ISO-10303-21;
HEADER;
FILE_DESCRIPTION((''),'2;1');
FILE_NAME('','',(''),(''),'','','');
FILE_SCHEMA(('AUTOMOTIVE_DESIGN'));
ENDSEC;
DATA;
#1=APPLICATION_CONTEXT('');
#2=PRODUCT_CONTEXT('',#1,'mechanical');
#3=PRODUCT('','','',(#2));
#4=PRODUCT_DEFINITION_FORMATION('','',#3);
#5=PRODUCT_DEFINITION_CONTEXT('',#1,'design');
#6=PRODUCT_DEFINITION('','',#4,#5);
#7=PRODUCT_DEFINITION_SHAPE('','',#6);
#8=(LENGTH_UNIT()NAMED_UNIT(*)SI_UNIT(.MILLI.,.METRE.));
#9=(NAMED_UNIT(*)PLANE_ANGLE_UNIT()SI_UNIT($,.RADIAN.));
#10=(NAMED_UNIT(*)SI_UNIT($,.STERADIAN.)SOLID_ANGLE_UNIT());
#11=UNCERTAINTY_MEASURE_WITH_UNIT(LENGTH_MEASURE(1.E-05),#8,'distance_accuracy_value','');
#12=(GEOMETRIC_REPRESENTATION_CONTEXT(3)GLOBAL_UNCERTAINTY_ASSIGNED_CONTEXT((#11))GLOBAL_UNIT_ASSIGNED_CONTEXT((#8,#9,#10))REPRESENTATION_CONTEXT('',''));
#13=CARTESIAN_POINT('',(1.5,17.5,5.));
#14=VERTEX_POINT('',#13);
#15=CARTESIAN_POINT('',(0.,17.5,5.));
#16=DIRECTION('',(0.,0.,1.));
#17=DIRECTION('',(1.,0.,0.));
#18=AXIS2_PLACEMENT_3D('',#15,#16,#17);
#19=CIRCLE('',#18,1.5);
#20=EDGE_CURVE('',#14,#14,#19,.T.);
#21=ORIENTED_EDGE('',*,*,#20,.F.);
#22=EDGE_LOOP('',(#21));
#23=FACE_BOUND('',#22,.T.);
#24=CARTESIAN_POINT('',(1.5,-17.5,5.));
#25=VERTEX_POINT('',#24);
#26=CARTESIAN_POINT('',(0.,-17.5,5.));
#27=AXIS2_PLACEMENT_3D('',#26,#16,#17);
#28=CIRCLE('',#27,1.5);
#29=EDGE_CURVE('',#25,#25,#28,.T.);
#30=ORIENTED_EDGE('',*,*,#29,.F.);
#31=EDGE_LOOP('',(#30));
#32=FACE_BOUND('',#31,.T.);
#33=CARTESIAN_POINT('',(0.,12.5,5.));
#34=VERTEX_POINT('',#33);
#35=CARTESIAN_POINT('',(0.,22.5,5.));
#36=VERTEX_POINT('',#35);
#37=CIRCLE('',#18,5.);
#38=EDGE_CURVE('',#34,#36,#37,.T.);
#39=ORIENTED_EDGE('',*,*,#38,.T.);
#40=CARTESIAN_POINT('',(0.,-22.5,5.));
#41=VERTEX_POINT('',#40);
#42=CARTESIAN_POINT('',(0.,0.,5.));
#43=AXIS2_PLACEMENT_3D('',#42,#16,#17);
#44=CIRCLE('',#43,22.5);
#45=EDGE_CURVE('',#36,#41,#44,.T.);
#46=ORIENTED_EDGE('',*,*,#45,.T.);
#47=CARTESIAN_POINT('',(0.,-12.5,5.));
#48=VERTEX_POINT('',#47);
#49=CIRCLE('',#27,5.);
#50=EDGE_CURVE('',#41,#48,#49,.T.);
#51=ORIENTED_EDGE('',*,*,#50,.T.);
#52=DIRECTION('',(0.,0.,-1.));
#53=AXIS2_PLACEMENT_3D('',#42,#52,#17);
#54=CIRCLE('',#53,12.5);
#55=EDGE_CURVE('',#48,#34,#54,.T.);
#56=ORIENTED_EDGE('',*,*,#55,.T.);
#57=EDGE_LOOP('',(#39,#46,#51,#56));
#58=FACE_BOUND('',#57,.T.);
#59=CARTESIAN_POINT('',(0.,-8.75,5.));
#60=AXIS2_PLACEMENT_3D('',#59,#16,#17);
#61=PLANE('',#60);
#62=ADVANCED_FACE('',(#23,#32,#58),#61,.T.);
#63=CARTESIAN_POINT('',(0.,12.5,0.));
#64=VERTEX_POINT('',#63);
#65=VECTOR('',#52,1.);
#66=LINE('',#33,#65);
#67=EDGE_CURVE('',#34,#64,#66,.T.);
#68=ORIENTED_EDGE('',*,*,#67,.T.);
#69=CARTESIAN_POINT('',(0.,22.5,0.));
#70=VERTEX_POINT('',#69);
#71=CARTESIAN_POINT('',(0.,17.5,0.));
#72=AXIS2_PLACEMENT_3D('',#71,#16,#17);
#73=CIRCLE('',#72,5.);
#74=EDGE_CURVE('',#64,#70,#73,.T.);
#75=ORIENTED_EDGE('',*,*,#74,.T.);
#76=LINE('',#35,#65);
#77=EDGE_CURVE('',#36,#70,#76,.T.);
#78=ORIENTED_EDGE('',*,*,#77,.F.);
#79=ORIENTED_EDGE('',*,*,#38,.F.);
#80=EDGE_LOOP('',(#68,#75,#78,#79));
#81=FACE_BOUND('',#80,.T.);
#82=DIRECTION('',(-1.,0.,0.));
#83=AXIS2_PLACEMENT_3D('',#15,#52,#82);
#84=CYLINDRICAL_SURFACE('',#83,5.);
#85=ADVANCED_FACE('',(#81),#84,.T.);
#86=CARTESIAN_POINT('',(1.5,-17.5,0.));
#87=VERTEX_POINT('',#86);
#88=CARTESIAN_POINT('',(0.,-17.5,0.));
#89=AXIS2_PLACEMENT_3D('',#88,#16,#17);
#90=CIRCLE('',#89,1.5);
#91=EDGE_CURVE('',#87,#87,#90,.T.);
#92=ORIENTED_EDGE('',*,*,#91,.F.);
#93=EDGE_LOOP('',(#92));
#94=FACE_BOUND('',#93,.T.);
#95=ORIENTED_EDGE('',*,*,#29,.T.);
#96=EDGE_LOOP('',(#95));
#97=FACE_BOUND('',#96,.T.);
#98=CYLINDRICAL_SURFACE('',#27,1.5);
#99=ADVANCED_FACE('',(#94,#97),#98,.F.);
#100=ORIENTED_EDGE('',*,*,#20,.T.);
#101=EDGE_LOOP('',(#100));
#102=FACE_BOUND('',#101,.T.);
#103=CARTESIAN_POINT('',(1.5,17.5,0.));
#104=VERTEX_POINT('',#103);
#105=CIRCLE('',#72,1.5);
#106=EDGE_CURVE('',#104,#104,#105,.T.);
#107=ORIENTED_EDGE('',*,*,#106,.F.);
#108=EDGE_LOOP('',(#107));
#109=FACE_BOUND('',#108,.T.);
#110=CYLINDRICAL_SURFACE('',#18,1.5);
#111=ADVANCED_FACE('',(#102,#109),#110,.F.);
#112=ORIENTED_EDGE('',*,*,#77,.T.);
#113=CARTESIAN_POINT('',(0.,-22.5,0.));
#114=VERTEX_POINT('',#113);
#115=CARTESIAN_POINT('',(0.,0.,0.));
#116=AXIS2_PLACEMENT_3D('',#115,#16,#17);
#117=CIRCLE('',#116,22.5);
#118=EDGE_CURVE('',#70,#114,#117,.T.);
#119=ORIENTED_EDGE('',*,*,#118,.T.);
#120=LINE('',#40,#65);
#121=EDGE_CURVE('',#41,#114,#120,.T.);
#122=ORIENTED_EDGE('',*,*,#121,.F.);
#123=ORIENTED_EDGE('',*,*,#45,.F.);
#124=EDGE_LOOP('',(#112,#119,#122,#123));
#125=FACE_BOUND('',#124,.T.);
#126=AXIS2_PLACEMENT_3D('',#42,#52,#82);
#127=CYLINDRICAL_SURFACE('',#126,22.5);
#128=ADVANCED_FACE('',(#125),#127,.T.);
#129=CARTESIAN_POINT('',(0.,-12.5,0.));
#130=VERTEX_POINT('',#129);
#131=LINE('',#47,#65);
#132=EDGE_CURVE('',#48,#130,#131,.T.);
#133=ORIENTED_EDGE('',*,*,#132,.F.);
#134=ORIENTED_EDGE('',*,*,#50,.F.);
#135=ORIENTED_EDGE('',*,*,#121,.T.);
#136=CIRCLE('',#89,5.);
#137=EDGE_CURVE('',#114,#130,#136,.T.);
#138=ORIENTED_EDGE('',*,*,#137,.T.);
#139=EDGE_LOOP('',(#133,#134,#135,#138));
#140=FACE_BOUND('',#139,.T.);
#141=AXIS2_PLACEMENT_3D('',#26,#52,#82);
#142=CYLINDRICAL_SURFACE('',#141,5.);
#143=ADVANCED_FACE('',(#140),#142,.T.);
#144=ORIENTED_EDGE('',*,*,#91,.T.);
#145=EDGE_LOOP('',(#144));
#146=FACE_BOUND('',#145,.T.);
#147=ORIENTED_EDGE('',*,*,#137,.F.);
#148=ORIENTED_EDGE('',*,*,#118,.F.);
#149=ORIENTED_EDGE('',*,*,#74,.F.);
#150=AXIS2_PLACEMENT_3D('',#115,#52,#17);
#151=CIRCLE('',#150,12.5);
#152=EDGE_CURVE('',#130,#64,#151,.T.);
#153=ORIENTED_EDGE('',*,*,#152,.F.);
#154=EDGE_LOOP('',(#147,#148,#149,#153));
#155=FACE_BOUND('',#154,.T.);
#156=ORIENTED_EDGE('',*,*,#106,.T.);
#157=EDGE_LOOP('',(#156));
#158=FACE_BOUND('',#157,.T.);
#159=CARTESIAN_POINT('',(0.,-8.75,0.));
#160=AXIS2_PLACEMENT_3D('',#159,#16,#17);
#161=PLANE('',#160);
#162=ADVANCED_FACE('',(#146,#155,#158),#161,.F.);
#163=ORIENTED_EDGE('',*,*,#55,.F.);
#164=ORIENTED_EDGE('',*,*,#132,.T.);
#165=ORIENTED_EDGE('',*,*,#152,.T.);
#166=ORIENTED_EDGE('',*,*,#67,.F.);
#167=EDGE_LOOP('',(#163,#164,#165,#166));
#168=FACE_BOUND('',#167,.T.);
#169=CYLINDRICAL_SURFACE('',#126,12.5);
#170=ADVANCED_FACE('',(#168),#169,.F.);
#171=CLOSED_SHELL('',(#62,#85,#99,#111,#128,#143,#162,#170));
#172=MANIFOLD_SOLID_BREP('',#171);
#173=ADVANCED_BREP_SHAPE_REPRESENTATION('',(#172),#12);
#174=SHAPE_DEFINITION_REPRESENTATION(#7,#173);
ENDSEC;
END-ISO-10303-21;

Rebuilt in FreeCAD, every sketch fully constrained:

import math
import FreeCAD as App
import Part
import Sketcher
from FreeCAD import Vector

doc = App.newDocument("Part")
body = doc.addObject("PartDesign::Body", "Body")

# Sketch on XY plane
sketch1 = body.newObject("Sketcher::SketchObject", "Sketch")
sketch1.AttachmentSupport = (doc.getObject("XY_Plane"), [""])
sketch1.MapMode = "FlatFace"
sketch1.addGeometry([
    Part.ArcOfCircle(Part.Circle(Vector(0, 0, 0), Vector(0, 0, 1), 22), math.radians(90), math.radians(270)),
    Part.ArcOfCircle(Part.Circle(Vector(0, -18, 0), Vector(0, 0, 1), 5), math.radians(-90), math.radians(90)),
    Part.ArcOfCircle(Part.Circle(Vector(0, 0, 0), Vector(0, 0, 1), 12), math.radians(90), math.radians(270)),
    Part.ArcOfCircle(Part.Circle(Vector(0, 18, 0), Vector(0, 0, 1), 5), math.radians(-90), math.radians(90)),
], False)
sketch1.addConstraint([
    Sketcher.Constraint("Tangent", 0, 2, 1, 1),
    Sketcher.Constraint("Tangent", 1, 2, 2, 2),
    Sketcher.Constraint("Tangent", 2, 1, 3, 1),
    Sketcher.Constraint("Tangent", 3, 2, 0, 1),
    Sketcher.Constraint("Coincident", 0, 3, -1, 1),
    Sketcher.Constraint("Coincident", 2, 3, -1, 1),
    Sketcher.Constraint("PointOnObject", 1, 3, -2),
    Sketcher.Constraint("PointOnObject", 3, 3, -2),
    Sketcher.Constraint("Radius", 1, 5.0),
    Sketcher.Constraint("Radius", 0, 22.5),
])
pad1 = body.newObject("PartDesign::Pad", "Pad")
pad1.Profile = sketch1
pad1.Length = 5

# Sketch on XY plane
sketch2 = body.newObject("Sketcher::SketchObject", "Sketch001")
sketch2.AttachmentSupport = (doc.getObject("XY_Plane"), [""])
sketch2.MapMode = "FlatFace"
sketch2.AttachmentOffset = App.Placement(Vector(0, 0, 5), App.Rotation())
sketch2.addGeometry([
    Part.Circle(Vector(0, 17.5, 0), Vector(0, 0, 1), 1.5),
    Part.Circle(Vector(0, -17.5, 0), Vector(0, 0, 1), 1.5),
], False)
sketch2.addConstraint([
    Sketcher.Constraint("Equal", 0, 1),
    Sketcher.Constraint("Symmetric", 0, 3, 1, 3, -1, 1),
    Sketcher.Constraint("PointOnObject", 0, 3, -2),
    Sketcher.Constraint("Diameter", 0, 3.0),
    Sketcher.Constraint("DistanceY", 1, 3, 0, 3, 35.0),
])
doc.recompute()
hole = body.newObject("PartDesign::Hole", "Hole")
hole.Profile = sketch2
hole.ThreadType = "None"
hole.Diameter = 3
hole.DepthType = "ThroughAll"

doc.recompute()
